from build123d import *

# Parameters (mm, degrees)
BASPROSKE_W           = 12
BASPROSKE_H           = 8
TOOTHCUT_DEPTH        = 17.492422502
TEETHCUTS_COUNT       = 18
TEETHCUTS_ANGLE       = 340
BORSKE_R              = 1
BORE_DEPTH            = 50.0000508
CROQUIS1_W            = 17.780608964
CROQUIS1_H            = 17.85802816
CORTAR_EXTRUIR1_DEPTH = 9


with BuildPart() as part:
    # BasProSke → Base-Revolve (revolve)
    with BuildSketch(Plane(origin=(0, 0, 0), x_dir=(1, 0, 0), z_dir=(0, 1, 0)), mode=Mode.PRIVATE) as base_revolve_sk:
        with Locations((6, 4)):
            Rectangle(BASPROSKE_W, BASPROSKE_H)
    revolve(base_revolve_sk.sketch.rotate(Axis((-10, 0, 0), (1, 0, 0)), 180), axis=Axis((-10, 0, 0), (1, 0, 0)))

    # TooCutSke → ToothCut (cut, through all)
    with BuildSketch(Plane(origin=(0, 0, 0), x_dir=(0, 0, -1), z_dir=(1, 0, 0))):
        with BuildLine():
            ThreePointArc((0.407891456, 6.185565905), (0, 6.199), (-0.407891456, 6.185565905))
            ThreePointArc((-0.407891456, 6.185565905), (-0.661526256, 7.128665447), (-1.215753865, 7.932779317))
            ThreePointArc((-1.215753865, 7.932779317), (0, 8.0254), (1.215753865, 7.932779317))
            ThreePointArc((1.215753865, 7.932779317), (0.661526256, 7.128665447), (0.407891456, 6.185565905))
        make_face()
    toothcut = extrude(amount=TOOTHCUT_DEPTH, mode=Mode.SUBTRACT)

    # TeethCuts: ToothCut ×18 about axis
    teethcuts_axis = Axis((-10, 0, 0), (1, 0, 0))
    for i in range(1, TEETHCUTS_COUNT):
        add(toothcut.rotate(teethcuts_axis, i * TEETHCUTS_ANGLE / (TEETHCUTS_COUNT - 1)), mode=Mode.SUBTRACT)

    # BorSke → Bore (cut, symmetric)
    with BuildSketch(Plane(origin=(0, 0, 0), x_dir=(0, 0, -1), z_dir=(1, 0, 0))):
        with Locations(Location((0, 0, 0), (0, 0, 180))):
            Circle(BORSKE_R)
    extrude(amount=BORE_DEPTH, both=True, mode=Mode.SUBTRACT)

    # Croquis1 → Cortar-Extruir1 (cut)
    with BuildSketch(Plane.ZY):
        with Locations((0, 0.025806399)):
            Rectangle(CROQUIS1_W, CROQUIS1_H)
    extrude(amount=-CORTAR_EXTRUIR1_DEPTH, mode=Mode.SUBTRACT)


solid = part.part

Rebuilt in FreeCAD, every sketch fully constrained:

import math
import FreeCAD as App
import Part
import Sketcher

V = App.Vector
Q = App.Units.Quantity

doc = App.newDocument("Part")
body = doc.addObject("PartDesign::Body", "Body")

sketch1 = body.newObject("Sketcher::SketchObject", "Sketch")
sketch1.AttachmentSupport = (doc.getObject("XZ_Plane"), [""])
sketch1.MapMode = "FlatFace"
sketch1.addGeometry([
    Part.LineSegment(V(0, -8, 0), V(0, 0, 0)),
    Part.LineSegment(V(0, 0, 0), V(12, 0, 0)),
    Part.LineSegment(V(12, 0, 0), V(12, -8, 0)),
    Part.LineSegment(V(12, -8, 0), V(0, -8, 0)),
], False)
sketch1.addConstraint([
    Sketcher.Constraint("Coincident", 0, 2, 1, 1),
    Sketcher.Constraint("Coincident", 1, 2, 2, 1),
    Sketcher.Constraint("Coincident", 2, 2, 3, 1),
    Sketcher.Constraint("Coincident", 3, 2, 0, 1),
    Sketcher.Constraint("Vertical", 0),
    Sketcher.Constraint("Horizontal", 1),
    Sketcher.Constraint("Vertical", 2),
    Sketcher.Constraint("Horizontal", 3),
    Sketcher.Constraint("Coincident", 0, 2, -1, 1),
    Sketcher.Constraint("DistanceX", 1, 1, 1, 2, Q("12 mm")),
    Sketcher.Constraint("DistanceY", 0, 1, 0, 2, Q("8 mm")),
])
revolution = body.newObject("PartDesign::Revolution", "Revolution")
revolution.Profile = sketch1
revolution.ReferenceAxis = (sketch1, ["H_Axis"])
revolution.Angle = 360

sketch2 = body.newObject("Sketcher::SketchObject", "Sketch001")
sketch2.AttachmentSupport = (doc.getObject("YZ_Plane"), [""])
sketch2.MapMode = "FlatFace"
sketch2.addGeometry([
    Part.ArcOfCircle(Part.Circle(V(0, 0, 0), V(0, 0, 1), 6.2), math.radians(-3.77), math.radians(3.77)),
    Part.ArcOfCircle(Part.Circle(V(5.9, -3.3, 0), V(0, 0, 1), 2.9), math.radians(46), math.radians(85)),
    Part.ArcOfCircle(Part.Circle(V(0, 0, 0), V(0, 0, 1), 8), math.radians(-8.71), math.radians(8.71)),
    Part.ArcOfCircle(Part.Circle(V(5.9, 3.3, 0), V(0, 0, 1), 2.9), math.radians(-85), math.radians(-46)),
], False)
sketch2.addConstraint([
    Sketcher.Constraint("Coincident", 0, 1, 1, 2),
    Sketcher.Constraint("Coincident", 1, 1, 2, 1),
    Sketcher.Constraint("Coincident", 2, 2, 3, 2),
    Sketcher.Constraint("Coincident", 3, 1, 0, 2),
    Sketcher.Constraint("Coincident", 0, 3, -1, 1),
    Sketcher.Constraint("Coincident", 2, 3, -1, 1),
    Sketcher.Constraint("Equal", 1, 3),
    Sketcher.Constraint("Symmetric", 1, 3, 3, 3, -1),
    Sketcher.Constraint("Radius", 1, Q("2.88 mm")),
    Sketcher.Constraint("Radius", 0, Q("6.199 mm")),
    Sketcher.Constraint("Radius", 2, Q("8.0254 mm")),
    Sketcher.Constraint("DistanceY", 1, 3, -1, 1, Q("3.27562 mm")),
    Sketcher.Constraint("DistanceY", 0, 1, -1, 1, Q("0.407891 mm")),
])
pocket1 = body.newObject("PartDesign::Pocket", "Pocket")
pocket1.Profile = sketch2
pocket1.Type = "ThroughAll"
pocket1.Reversed = True
doc.recompute()

polarpattern = body.newObject("PartDesign::PolarPattern", "PolarPattern")
polarpattern.Originals = [pocket1]
polarpattern.Axis = (doc.getObject("X_Axis"), [""])
polarpattern.Angle = 360
polarpattern.Occurrences = 18
body.Tip = polarpattern

sketch3 = body.newObject("Sketcher::SketchObject", "Sketch002")
sketch3.AttachmentSupport = (doc.getObject("YZ_Plane"), [""])
sketch3.MapMode = "FlatFace"
sketch3.addGeometry(Part.Circle(V(0, 0, 0), V(0, 0, 1), 1), False)
sketch3.addConstraint([
    Sketcher.Constraint("Coincident", 0, 3, -1, 1),
    Sketcher.Constraint("Diameter", 0, Q("2 mm")),
])
pocket2 = body.newObject("PartDesign::Pocket", "Pocket001")
pocket2.Profile = sketch3
pocket2.Length = 100.000102
pocket2.Midplane = True

sketch4 = body.newObject("Sketcher::SketchObject", "Sketch003")
sketch4.AttachmentSupport = (doc.getObject("YZ_Plane"), [""])
sketch4.MapMode = "FlatFace"
sketch4.addGeometry([
    Part.LineSegment(V(9, -9, 0), V(-9, -9, 0)),
    Part.LineSegment(V(-9, -9, 0), V(-9, 9, 0)),
    Part.LineSegment(V(-9, 9, 0), V(9, 9, 0)),
    Part.LineSegment(V(9, 9, 0), V(9, -9, 0)),
], False)
sketch4.addConstraint([
    Sketcher.Constraint("Coincident", 0, 2, 1, 1),
    Sketcher.Constraint("Coincident", 1, 2, 2, 1),
    Sketcher.Constraint("Coincident", 2, 2, 3, 1),
    Sketcher.Constraint("Coincident", 3, 2, 0, 1),
    Sketcher.Constraint("Horizontal", 0),
    Sketcher.Constraint("Vertical", 1),
    Sketcher.Constraint("Horizontal", 2),
    Sketcher.Constraint("Vertical", 3),
    Sketcher.Constraint("DistanceX", 0, 2, 0, 1, Q("17.858028 mm")),
    Sketcher.Constraint("DistanceY", 1, 1, 1, 2, Q("17.780609 mm")),
    Sketcher.Constraint("DistanceX", -1, 1, 2, 2, Q("8.95482 mm")),
    Sketcher.Constraint("DistanceY", 0, 2, -1, 1, Q("8.890304 mm")),
])
pocket3 = body.newObject("PartDesign::Pocket", "Pocket002")
pocket3.Profile = sketch4
pocket3.Length = 9
pocket3.Reversed = True

doc.recompute()
